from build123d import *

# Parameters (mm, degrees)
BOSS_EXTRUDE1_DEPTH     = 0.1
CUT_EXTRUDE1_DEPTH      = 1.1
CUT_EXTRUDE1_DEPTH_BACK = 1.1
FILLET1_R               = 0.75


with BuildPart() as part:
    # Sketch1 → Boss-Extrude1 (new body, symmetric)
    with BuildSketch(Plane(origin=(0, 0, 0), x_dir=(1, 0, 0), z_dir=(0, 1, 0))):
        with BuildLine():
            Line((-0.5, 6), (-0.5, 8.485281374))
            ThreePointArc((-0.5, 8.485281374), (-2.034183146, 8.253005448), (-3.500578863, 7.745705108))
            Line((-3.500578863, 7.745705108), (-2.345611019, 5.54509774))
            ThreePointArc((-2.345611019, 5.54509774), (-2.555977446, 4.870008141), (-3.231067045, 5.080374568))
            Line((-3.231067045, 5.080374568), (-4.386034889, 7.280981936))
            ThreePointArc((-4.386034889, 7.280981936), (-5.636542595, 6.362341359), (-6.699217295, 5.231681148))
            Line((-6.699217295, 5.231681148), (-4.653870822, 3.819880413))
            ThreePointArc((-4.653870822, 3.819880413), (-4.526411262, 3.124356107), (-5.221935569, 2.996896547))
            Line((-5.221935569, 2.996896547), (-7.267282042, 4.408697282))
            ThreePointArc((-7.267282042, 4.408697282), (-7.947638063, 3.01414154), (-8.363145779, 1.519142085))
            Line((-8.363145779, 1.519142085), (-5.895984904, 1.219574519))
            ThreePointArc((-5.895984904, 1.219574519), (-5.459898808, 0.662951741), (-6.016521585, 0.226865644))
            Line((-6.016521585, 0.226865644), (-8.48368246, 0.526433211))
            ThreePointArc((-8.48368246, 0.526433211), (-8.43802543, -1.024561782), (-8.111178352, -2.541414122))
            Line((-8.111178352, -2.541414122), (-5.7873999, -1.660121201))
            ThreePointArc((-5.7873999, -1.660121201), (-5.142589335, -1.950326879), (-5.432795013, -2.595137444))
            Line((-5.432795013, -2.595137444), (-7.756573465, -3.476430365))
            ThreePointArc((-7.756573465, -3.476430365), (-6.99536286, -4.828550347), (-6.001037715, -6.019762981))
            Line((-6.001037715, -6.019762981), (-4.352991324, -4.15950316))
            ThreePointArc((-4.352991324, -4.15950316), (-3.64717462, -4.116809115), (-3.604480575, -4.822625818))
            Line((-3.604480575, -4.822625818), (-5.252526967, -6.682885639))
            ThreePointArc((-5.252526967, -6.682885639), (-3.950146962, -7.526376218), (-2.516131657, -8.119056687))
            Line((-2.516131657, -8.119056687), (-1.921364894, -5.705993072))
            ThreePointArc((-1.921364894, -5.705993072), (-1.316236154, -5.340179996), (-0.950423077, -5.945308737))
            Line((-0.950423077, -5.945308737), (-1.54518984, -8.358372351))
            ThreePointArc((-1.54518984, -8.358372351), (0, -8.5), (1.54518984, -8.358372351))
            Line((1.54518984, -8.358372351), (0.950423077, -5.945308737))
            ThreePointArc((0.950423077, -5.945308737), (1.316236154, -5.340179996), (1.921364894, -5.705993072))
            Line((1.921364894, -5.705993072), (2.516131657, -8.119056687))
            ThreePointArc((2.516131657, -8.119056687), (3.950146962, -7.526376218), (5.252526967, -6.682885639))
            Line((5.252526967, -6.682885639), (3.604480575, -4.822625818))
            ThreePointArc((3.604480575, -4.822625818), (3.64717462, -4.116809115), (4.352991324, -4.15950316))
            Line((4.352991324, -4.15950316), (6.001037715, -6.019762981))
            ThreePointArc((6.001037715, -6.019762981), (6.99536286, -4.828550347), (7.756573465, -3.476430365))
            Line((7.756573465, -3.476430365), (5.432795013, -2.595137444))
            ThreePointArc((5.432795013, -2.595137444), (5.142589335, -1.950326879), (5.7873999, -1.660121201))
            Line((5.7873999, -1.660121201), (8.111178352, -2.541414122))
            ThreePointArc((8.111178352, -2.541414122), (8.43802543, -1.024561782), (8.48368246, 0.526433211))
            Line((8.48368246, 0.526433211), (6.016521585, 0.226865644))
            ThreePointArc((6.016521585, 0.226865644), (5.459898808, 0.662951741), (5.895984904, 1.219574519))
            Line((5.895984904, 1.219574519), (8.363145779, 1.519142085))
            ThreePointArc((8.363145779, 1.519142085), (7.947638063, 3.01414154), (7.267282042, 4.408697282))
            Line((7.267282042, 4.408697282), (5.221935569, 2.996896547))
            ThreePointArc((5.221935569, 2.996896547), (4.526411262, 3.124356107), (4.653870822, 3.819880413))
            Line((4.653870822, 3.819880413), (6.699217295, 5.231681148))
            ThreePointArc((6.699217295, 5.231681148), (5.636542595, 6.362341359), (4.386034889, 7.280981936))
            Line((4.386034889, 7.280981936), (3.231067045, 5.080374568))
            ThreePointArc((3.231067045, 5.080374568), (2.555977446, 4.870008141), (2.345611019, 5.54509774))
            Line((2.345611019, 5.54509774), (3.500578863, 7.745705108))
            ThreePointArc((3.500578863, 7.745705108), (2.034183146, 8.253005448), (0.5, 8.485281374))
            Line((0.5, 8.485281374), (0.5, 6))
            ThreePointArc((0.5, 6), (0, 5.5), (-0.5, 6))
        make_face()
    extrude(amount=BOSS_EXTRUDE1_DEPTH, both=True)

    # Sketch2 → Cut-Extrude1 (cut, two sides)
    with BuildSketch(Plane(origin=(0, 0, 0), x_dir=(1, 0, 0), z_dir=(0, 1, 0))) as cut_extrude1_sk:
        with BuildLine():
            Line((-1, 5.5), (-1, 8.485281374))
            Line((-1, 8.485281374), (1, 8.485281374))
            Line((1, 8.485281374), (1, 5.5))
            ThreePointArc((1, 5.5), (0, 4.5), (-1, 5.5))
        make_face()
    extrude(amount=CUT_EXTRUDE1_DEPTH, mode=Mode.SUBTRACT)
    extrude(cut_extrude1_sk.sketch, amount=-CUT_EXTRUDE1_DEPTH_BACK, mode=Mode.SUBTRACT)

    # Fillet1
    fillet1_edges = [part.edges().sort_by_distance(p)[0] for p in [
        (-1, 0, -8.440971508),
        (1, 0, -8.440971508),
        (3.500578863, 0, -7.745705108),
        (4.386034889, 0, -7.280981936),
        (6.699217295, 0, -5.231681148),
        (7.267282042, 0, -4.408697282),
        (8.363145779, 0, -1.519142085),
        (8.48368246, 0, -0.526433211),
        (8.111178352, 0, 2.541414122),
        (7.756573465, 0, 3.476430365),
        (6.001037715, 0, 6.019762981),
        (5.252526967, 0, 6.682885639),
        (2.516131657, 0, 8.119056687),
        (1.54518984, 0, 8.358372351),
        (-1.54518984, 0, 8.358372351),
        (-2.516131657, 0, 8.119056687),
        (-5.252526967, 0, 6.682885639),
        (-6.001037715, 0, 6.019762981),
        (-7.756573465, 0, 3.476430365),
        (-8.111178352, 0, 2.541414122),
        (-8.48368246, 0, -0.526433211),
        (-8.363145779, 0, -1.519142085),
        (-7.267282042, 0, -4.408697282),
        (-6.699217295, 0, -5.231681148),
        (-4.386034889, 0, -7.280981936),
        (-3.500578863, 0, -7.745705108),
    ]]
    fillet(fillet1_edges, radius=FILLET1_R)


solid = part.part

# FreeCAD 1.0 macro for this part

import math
import FreeCAD as App
import Part
import Sketcher


def edges_at(feature, points):
    """Names of the edges that pass closest to the given points."""
    edges = feature.Shape.Edges
    near = lambda p: min(range(len(edges)), key=lambda i: edges[i].distToShape(Part.Vertex(*p))[0])
    return sorted({f"Edge{near(p) + 1}" for p in points})

doc = App.newDocument("Part")
body = doc.addObject("PartDesign::Body", "Body")

sketch1 = body.newObject("Sketcher::SketchObject", "Sketch")
sketch1.AttachmentSupport = (doc.getObject("XZ_Plane"), [""])
sketch1.MapMode = "FlatFace"
sketch1.addGeometry([
    Part.LineSegment(App.Vector(-0.5, -6, 0), App.Vector(-0.5, -8.485281, 0)),
    Part.ArcOfCircle(Part.Circle(App.Vector(0, 0, 0), App.Vector(0, 0, 1), 8.5), math.radians(-114.320021), math.radians(-93.372287)),
    Part.LineSegment(App.Vector(-3.500579, -7.745705, 0), App.Vector(-2.345611, -5.545098, 0)),
    Part.ArcOfCircle(Part.Circle(App.Vector(-2.788339, -5.312736, 0), App.Vector(0, 0, 1), 0.5), math.radians(-27.692308), math.radians(152.307692)),
    Part.LineSegment(App.Vector(-3.231067, -5.080375, 0), App.Vector(-4.386035, -7.280982, 0)),
    Part.ArcOfCircle(Part.Circle(App.Vector(0, 0, 0), App.Vector(0, 0, 1), 8.5), math.radians(-142.012329), math.radians(-121.064594)),
    Part.LineSegment(App.Vector(-6.699217, -5.231681, 0), App.Vector(-4.653871, -3.81988, 0)),
    Part.ArcOfCircle(Part.Circle(App.Vector(-4.937903, -3.408388, 0), App.Vector(0, 0, 1), 0.5), math.radians(-55.384615), math.radians(124.615385)),
    Part.LineSegment(App.Vector(-5.221936, -2.996897, 0), App.Vector(-7.267282, -4.408697, 0)),
    Part.ArcOfCircle(Part.Circle(App.Vector(0, 0, 0), App.Vector(0, 0, 1), 8.5), math.radians(-169.704636), math.radians(-148.756902)),
    Part.LineSegment(App.Vector(-8.363146, -1.519142, 0), App.Vector(-5.895985, -1.219575, 0)),
    Part.ArcOfCircle(Part.Circle(App.Vector(-5.956253, -0.72322, 0), App.Vector(0, 0, 1), 0.5), math.radians(-83.076923), math.radians(96.923077)),
    Part.LineSegment(App.Vector(-6.016522, -0.226866, 0), App.Vector(-8.483682, -0.526433, 0)),
    Part.ArcOfCircle(Part.Circle(App.Vector(0, 0, 0), App.Vector(0, 0, 1), 8.5), math.radians(162.603056), math.radians(183.55079)),
    Part.LineSegment(App.Vector(-8.111178, 2.541414, 0), App.Vector(-5.7874, 1.660121, 0)),
    Part.ArcOfCircle(Part.Circle(App.Vector(-5.610097, 2.127629, 0), App.Vector(0, 0, 1), 0.5), math.radians(-110.769231), math.radians(69.230769)),
    Part.LineSegment(App.Vector(-5.432795, 2.595137, 0), App.Vector(-7.756573, 3.47643, 0)),
    Part.ArcOfCircle(Part.Circle(App.Vector(0, 0, 0), App.Vector(0, 0, 1), 8.5), math.radians(134.910748), math.radians(155.858483)),
    Part.LineSegment(App.Vector(-6.001038, 6.019763, 0), App.Vector(-4.352991, 4.159503, 0)),
    Part.ArcOfCircle(Part.Circle(App.Vector(-3.978736, 4.491064, 0), App.Vector(0, 0, 1), 0.5), math.radians(-138.461538), math.radians(41.538461)),
    Part.LineSegment(App.Vector(-3.604481, 4.822626, 0), App.Vector(-5.252527, 6.682886, 0)),
    Part.ArcOfCircle(Part.Circle(App.Vector(0, 0, 0), App.Vector(0, 0, 1), 8.5), math.radians(107.218441), math.radians(128.166175)),
    Part.LineSegment(App.Vector(-2.516132, 8.119057, 0), App.Vector(-1.921365, 5.705993, 0)),
    Part.ArcOfCircle(Part.Circle(App.Vector(-1.435894, 5.825651, 0), App.Vector(0, 0, 1), 0.5), math.radians(-166.153846), math.radians(13.846154)),
    Part.LineSegment(App.Vector(-0.950423, 5.945309, 0), App.Vector(-1.54519, 8.358372, 0)),
    Part.ArcOfCircle(Part.Circle(App.Vector(0, 0, 0), App.Vector(0, 0, 1), 8.5), math.radians(79.526133), math.radians(100.473867)),
    Part.LineSegment(App.Vector(1.54519, 8.358372, 0), App.Vector(0.950423, 5.945309, 0)),
    Part.ArcOfCircle(Part.Circle(App.Vector(1.435894, 5.825651, 0), App.Vector(0, 0, 1), 0.5), math.radians(166.153846), math.radians(346.153846)),
    Part.LineSegment(App.Vector(1.921365, 5.705993, 0), App.Vector(2.516132, 8.119057, 0)),
    Part.ArcOfCircle(Part.Circle(App.Vector(0, 0, 0), App.Vector(0, 0, 1), 8.5), math.radians(51.833825), math.radians(72.781559)),
    Part.LineSegment(App.Vector(5.252527, 6.682886, 0), App.Vector(3.604481, 4.822626, 0)),
    Part.ArcOfCircle(Part.Circle(App.Vector(3.978736, 4.491064, 0), App.Vector(0, 0, 1), 0.5), math.radians(138.461539), math.radians(318.461538)),
    Part.LineSegment(App.Vector(4.352991, 4.159503, 0), App.Vector(6.001038, 6.019763, 0)),
    Part.ArcOfCircle(Part.Circle(App.Vector(0, 0, 0), App.Vector(0, 0, 1), 8.5), math.radians(24.141517), math.radians(45.089252)),
    Part.LineSegment(App.Vector(7.756573, 3.47643, 0), App.Vector(5.432795, 2.595137, 0)),
    Part.ArcOfCircle(Part.Circle(App.Vector(5.610097, 2.127629, 0), App.Vector(0, 0, 1), 0.5), math.radians(110.769231), math.radians(290.769231)),
    Part.LineSegment(App.Vector(5.7874, 1.660121, 0), App.Vector(8.111178, 2.541414, 0)),
    Part.ArcOfCircle(Part.Circle(App.Vector(0, 0, 0), App.Vector(0, 0, 1), 8.5), math.radians(-3.55079), math.radians(17.396944)),
    Part.LineSegment(App.Vector(8.483682, -0.526433, 0), App.Vector(6.016522, -0.226866, 0)),
    Part.ArcOfCircle(Part.Circle(App.Vector(5.956253, -0.72322, 0), App.Vector(0, 0, 1), 0.5), math.radians(83.076923), math.radians(263.076923)),
    Part.LineSegment(App.Vector(5.895985, -1.219575, 0), App.Vector(8.363146, -1.519142, 0)),
    Part.ArcOfCircle(Part.Circle(App.Vector(0, 0, 0), App.Vector(0, 0, 1), 8.5), math.radians(-31.243098), math.radians(-10.295364)),
    Part.LineSegment(App.Vector(7.267282, -4.408697, 0), App.Vector(5.221936, -2.996897, 0)),
    Part.ArcOfCircle(Part.Circle(App.Vector(4.937903, -3.408388, 0), App.Vector(0, 0, 1), 0.5), math.radians(55.384615), math.radians(235.384615)),
    Part.LineSegment(App.Vector(4.653871, -3.81988, 0), App.Vector(6.699217, -5.231681, 0)),
    Part.ArcOfCircle(Part.Circle(App.Vector(0, 0, 0), App.Vector(0, 0, 1), 8.5), math.radians(-58.935406), math.radians(-37.987671)),
    Part.LineSegment(App.Vector(4.386035, -7.280982, 0), App.Vector(3.231067, -5.080375, 0)),
    Part.ArcOfCircle(Part.Circle(App.Vector(2.788339, -5.312736, 0), App.Vector(0, 0, 1), 0.5), math.radians(27.692308), math.radians(207.692308)),
    Part.LineSegment(App.Vector(2.345611, -5.545098, 0), App.Vector(3.500579, -7.745705, 0)),
    Part.ArcOfCircle(Part.Circle(App.Vector(0, 0, 0), App.Vector(0, 0, 1), 8.5), math.radians(-86.627713), math.radians(-65.679979)),
    Part.LineSegment(App.Vector(0.5, -8.485281, 0), App.Vector(0.5, -6, 0)),
    Part.ArcOfCircle(Part.Circle(App.Vector(0, -6, 0), App.Vector(0, 0, 1), 0.5), math.radians(0), math.radians(180)),
], False)
sketch1.addConstraint([
    Sketcher.Constraint("Coincident", 0, 2, 1, 2),
    Sketcher.Constraint("Coincident", 1, 1, 2, 1),
    Sketcher.Constraint("Tangent", 2, 2, 3, 1),
    Sketcher.Constraint("Tangent", 3, 2, 4, 1),
    Sketcher.Constraint("Coincident", 4, 2, 5, 2),
    Sketcher.Constraint("Coincident", 5, 1, 6, 1),
    Sketcher.Constraint("Tangent", 6, 2, 7, 1),
    Sketcher.Constraint("Tangent", 7, 2, 8, 1),
    Sketcher.Constraint("Coincident", 8, 2, 9, 2),
    Sketcher.Constraint("Coincident", 9, 1, 10, 1),
    Sketcher.Constraint("Tangent", 10, 2, 11, 1),
    Sketcher.Constraint("Tangent", 11, 2, 12, 1),
    Sketcher.Constraint("Coincident", 12, 2, 13, 2),
    Sketcher.Constraint("Coincident", 13, 1, 14, 1),
    Sketcher.Constraint("Tangent", 14, 2, 15, 1),
    Sketcher.Constraint("Tangent", 15, 2, 16, 1),
    Sketcher.Constraint("Coincident", 16, 2, 17, 2),
    Sketcher.Constraint("Coincident", 17, 1, 18, 1),
    Sketcher.Constraint("Tangent", 18, 2, 19, 1),
    Sketcher.Constraint("Tangent", 19, 2, 20, 1),
    Sketcher.Constraint("Coincident", 20, 2, 21, 2),
    Sketcher.Constraint("Coincident", 21, 1, 22, 1),
    Sketcher.Constraint("Tangent", 22, 2, 23, 1),
    Sketcher.Constraint("Tangent", 23, 2, 24, 1),
    Sketcher.Constraint("Coincident", 24, 2, 25, 2),
    Sketcher.Constraint("Coincident", 25, 1, 26, 1),
    Sketcher.Constraint("Tangent", 26, 2, 27, 1),
    Sketcher.Constraint("Tangent", 27, 2, 28, 1),
    Sketcher.Constraint("Coincident", 28, 2, 29, 2),
    Sketcher.Constraint("Coincident", 29, 1, 30, 1),
    Sketcher.Constraint("Tangent", 30, 2, 31, 1),
    Sketcher.Constraint("Tangent", 31, 2, 32, 1),
    Sketcher.Constraint("Coincident", 32, 2, 33, 2),
    Sketcher.Constraint("Coincident", 33, 1, 34, 1),
    Sketcher.Constraint("Tangent", 34, 2, 35, 1),
    Sketcher.Constraint("Tangent", 35, 2, 36, 1),
    Sketcher.Constraint("Coincident", 36, 2, 37, 2),
    Sketcher.Constraint("Coincident", 37, 1, 38, 1),
    Sketcher.Constraint("Tangent", 38, 2, 39, 1),
    Sketcher.Constraint("Tangent", 39, 2, 40, 1),
    Sketcher.Constraint("Coincident", 40, 2, 41, 2),
    Sketcher.Constraint("Coincident", 41, 1, 42, 1),
    Sketcher.Constraint("Tangent", 42, 2, 43, 1),
    Sketcher.Constraint("Tangent", 43, 2, 44, 1),
    Sketcher.Constraint("Coincident", 44, 2, 45, 2),
    Sketcher.Constraint("Coincident", 45, 1, 46, 1),
    Sketcher.Constraint("Tangent", 46, 2, 47, 1),
    Sketcher.Constraint("Tangent", 47, 2, 48, 1),
    Sketcher.Constraint("Coincident", 48, 2, 49, 2),
    Sketcher.Constraint("Coincident", 49, 1, 50, 1),
    Sketcher.Constraint("Tangent", 50, 2, 51, 1),
    Sketcher.Constraint("Tangent", 51, 2, 0, 1),
    Sketcher.Constraint("Vertical", 0),
    Sketcher.Constraint("Vertical", 50),
    Sketcher.Constraint("Coincident", 1, 3, -1, 1),
    Sketcher.Constraint("Coincident", 5, 3, -1, 1),
    Sketcher.Constraint("Coincident", 9, 3, -1, 1),
    Sketcher.Constraint("Coincident", 13, 3, -1, 1),
    Sketcher.Constraint("Coincident", 17, 3, -1, 1),
    Sketcher.Constraint("Coincident", 21, 3, -1, 1),
    Sketcher.Constraint("Coincident", 25, 3, -1, 1),
    Sketcher.Constraint("Coincident", 29, 3, -1, 1),
    Sketcher.Constraint("Coincident", 33, 3, -1, 1),
    Sketcher.Constraint("Coincident", 37, 3, -1, 1),
    Sketcher.Constraint("Coincident", 41, 3, -1, 1),
    Sketcher.Constraint("Coincident", 45, 3, -1, 1),
    Sketcher.Constraint("Coincident", 49, 3, -1, 1),
    Sketcher.Constraint("Equal", 1, 5),
    Sketcher.Constraint("Equal", 3, 7),
    Sketcher.Constraint("Equal", 5, 9),
    Sketcher.Constraint("Equal", 7, 11),
    Sketcher.Constraint("Equal", 9, 13),
    Sketcher.Constraint("Equal", 11, 15),
    Sketcher.Constraint("Equal", 13, 17),
    Sketcher.Constraint("Equal", 15, 19),
    Sketcher.Constraint("Equal", 17, 21),
    Sketcher.Constraint("Equal", 19, 23),
    Sketcher.Constraint("Equal", 21, 25),
    Sketcher.Constraint("Equal", 23, 27),
    Sketcher.Constraint("Equal", 25, 29),
    Sketcher.Constraint("Equal", 27, 31),
    Sketcher.Constraint("Equal", 29, 33),
    Sketcher.Constraint("Equal", 31, 35),
    Sketcher.Constraint("Equal", 33, 37),
    Sketcher.Constraint("Equal", 35, 39),
    Sketcher.Constraint("Equal", 37, 41),
    Sketcher.Constraint("Equal", 39, 43),
    Sketcher.Constraint("Equal", 41, 45),
    Sketcher.Constraint("Equal", 43, 47),
    Sketcher.Constraint("Equal", 45, 49),
    Sketcher.Constraint("Equal", 47, 51),
    Sketcher.Constraint("Symmetric", 23, 3, 27, 3, -2),
    Sketcher.Constraint("Symmetric", 19, 3, 31, 3, -2),
    Sketcher.Constraint("Symmetric", 15, 3, 35, 3, -2),
    Sketcher.Constraint("Symmetric", 11, 3, 39, 3, -2),
    Sketcher.Constraint("Symmetric", 7, 3, 43, 3, -2),
    Sketcher.Constraint("Symmetric", 3, 3, 47, 3, -2),
    Sketcher.Constraint("PointOnObject", 51, 3, -2),
    Sketcher.Constraint("Parallel", 2, 4),
    Sketcher.Constraint("Parallel", 6, 8),
    Sketcher.Constraint("Parallel", 10, 12),
    Sketcher.Constraint("Parallel", 14, 16),
    Sketcher.Constraint("Parallel", 18, 20),
    Sketcher.Constraint("Parallel", 22, 24),
    Sketcher.Constraint("Parallel", 26, 28),
    Sketcher.Constraint("Parallel", 30, 32),
    Sketcher.Constraint("Parallel", 34, 36),
    Sketcher.Constraint("Parallel", 38, 40),
    Sketcher.Constraint("Parallel", 42, 44),
    Sketcher.Constraint("Parallel", 46, 48),
    Sketcher.Constraint("Horizontal", 24, 2, 25, 1),
    Sketcher.Constraint("Horizontal", 20, 2, 29, 1),
    Sketcher.Constraint("Horizontal", 16, 2, 33, 1),
    Sketcher.Constraint("Horizontal", 12, 2, 37, 1),
    Sketcher.Constraint("Horizontal", 8, 2, 41, 1),
    Sketcher.Constraint("Horizontal", 4, 2, 45, 1),
    Sketcher.Constraint("Equal", 2, 4),
    Sketcher.Constraint("Equal", 4, 6),
    Sketcher.Constraint("Equal", 6, 8),
    Sketcher.Constraint("Equal", 8, 10),
    Sketcher.Constraint("Equal", 10, 12),
    Sketcher.Constraint("Equal", 12, 14),
    Sketcher.Constraint("Equal", 14, 16),
    Sketcher.Constraint("Equal", 16, 18),
    Sketcher.Constraint("Equal", 18, 20),
    Sketcher.Constraint("Equal", 20, 22),
    Sketcher.Constraint("Equal", 22, 24),
    Sketcher.Constraint("Radius", 1, 8.5),
    Sketcher.Constraint("Radius", 3, 0.5),
    Sketcher.Constraint("DistanceY", 51, 3, -1, 1, 6.0),
    Sketcher.Constraint("DistanceX", 14, 2, -1, 1, 5.7874),
    Sketcher.Constraint("Distance", 2, 2.485281),
    Sketcher.Constraint("DistanceX", 3, 3, -1, 1, 2.788339),
    Sketcher.Constraint("DistanceY", 7, 3, -1, 1, 3.408388),
    Sketcher.Constraint("DistanceY", 11, 3, -1, 1, 0.72322),
    Sketcher.Constraint("DistanceY", -1, 1, 23, 3, 5.825651),
    Sketcher.Constraint("DistanceX", 18, 2, -1, 1, 4.352991),
])
pad1 = body.newObject("PartDesign::Pad", "Pad")
pad1.Profile = sketch1
pad1.Length = 0.2
pad1.Midplane = True

sketch2 = body.newObject("Sketcher::SketchObject", "Sketch001")
sketch2.AttachmentSupport = (doc.getObject("XZ_Plane"), [""])
sketch2.MapMode = "FlatFace"
sketch2.addGeometry([
    Part.LineSegment(App.Vector(-1, -8.485281, 0), App.Vector(-1, -5.5, 0)),
    Part.ArcOfCircle(Part.Circle(App.Vector(0, -5.5, 0), App.Vector(0, 0, 1), 1), math.radians(0), math.radians(180)),
    Part.LineSegment(App.Vector(1, -5.5, 0), App.Vector(1, -8.485281, 0)),
    Part.LineSegment(App.Vector(1, -8.485281, 0), App.Vector(-1, -8.485281, 0)),
], False)
sketch2.addConstraint([
    Sketcher.Constraint("Tangent", 0, 2, 1, 2),
    Sketcher.Constraint("Tangent", 1, 1, 2, 1),
    Sketcher.Constraint("Coincident", 2, 2, 3, 1),
    Sketcher.Constraint("Coincident", 3, 2, 0, 1),
    Sketcher.Constraint("Vertical", 0),
    Sketcher.Constraint("Vertical", 2),
    Sketcher.Constraint("Horizontal", 3),
    Sketcher.Constraint("PointOnObject", 1, 3, -2),
    Sketcher.Constraint("Radius", 1, 1.0),
    Sketcher.Constraint("DistanceY", 1, 3, -1, 1, 5.5),
    Sketcher.Constraint("DistanceY", 0, 1, 0, 2, 2.985281),
])
pocket1 = body.newObject("PartDesign::Pocket", "Pocket")
pocket1.Profile = sketch2
pocket1.Type = "ThroughAll"
pocket1.Midplane = True
doc.recompute()

fillet = body.newObject("PartDesign::Fillet", "Fillet")
fillet.Base = (pocket1, edges_at(pocket1, [
    (-1, 0, -8.441),
    (1, 0, -8.441),
    (3.501, 0, -7.746),
    (4.386, 0, -7.281),
    (6.699, 0, -5.232),
    (7.267, 0, -4.409),
    (8.363, 0, -1.519),
    (8.484, 0, -0.526),
    (8.111, 0, 2.541),
    (7.757, 0, 3.476),
    (6.001, 0, 6.02),
    (5.253, 0, 6.683),
    (2.516, 0, 8.119),
    (1.545, 0, 8.358),
    (-1.545, 0, 8.358),
    (-2.516, 0, 8.119),
    (-5.253, 0, 6.683),
    (-6.001, 0, 6.02),
    (-7.757, 0, 3.476),
    (-8.111, 0, 2.541),
    (-8.484, 0, -0.526),
    (-8.363, 0, -1.519),
    (-7.267, 0, -4.409),
    (-6.699, 0, -5.232),
    (-4.386, 0, -7.281),
    (-3.501, 0, -7.746),
]))
fillet.Radius = 0.75

doc.recompute()
